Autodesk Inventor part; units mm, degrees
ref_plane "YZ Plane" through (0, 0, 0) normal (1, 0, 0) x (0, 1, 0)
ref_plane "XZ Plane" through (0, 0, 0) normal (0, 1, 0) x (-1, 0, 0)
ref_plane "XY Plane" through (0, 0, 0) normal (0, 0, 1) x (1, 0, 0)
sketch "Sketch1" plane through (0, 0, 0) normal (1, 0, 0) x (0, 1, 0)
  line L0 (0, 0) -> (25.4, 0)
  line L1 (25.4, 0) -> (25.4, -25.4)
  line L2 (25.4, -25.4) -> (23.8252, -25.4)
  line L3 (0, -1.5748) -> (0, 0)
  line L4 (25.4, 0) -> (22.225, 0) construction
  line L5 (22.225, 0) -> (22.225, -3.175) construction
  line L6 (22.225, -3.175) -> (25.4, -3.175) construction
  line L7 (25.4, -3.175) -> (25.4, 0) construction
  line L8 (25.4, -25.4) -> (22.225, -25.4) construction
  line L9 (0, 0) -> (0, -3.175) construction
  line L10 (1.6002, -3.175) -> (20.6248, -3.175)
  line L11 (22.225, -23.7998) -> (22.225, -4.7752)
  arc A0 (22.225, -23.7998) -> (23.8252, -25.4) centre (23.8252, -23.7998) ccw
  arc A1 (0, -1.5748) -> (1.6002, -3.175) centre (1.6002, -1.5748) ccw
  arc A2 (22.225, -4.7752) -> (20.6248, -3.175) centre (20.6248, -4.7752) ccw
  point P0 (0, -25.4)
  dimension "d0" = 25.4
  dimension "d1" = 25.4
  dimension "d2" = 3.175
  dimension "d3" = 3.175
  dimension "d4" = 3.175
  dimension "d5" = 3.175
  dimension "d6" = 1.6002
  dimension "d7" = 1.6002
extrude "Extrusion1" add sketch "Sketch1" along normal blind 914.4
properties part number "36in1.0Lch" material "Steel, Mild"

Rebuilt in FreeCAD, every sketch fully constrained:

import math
import FreeCAD as App
import Part
import Sketcher
Q = App.Units.Quantity

doc = App.newDocument("Part")
params = doc.addObject("Spreadsheet::Sheet", "Params")
for row, (alias, value) in enumerate([
    ("sketch1_width", "1 in"),
    ("sketch1_radius", "0.063 in"),
    ("pad1_length", "36 in"),
], start=1):
    params.set(f"A{row}", alias)
    params.set(f"B{row}", "=" + value)
    params.setAlias(f"B{row}", alias)

body = doc.addObject("PartDesign::Body", "Body")

# Sketch on YZ plane
sketch1 = body.newObject("Sketcher::SketchObject", "Sketch")
sketch1.AttachmentSupport = (doc.getObject("YZ_Plane"), [""])
sketch1.MapMode = "FlatFace"
sketch1.addGeometry(Part.LineSegment(App.Vector(25.4, 0, 0), App.Vector(0, 0, 0)), False)
sketch1.addGeometry(Part.LineSegment(App.Vector(0, 0, 0), App.Vector(0, -1.6, 0)), False)
sketch1.addGeometry(Part.ArcOfCircle(Part.Circle(App.Vector(1.6, -1.6, 0), App.Vector(0, 0, 1), 1.6), math.radians(180), math.radians(270)), False)
sketch1.addGeometry(Part.LineSegment(App.Vector(1.6, -3.2, 0), App.Vector(20.6, -3.2, 0)), False)
sketch1.addGeometry(Part.ArcOfCircle(Part.Circle(App.Vector(20.6, -4.8, 0), App.Vector(0, 0, 1), 1.6), math.radians(0), math.radians(90)), False)
sketch1.addGeometry(Part.LineSegment(App.Vector(22.2, -4.8, 0), App.Vector(22.2, -23.8, 0)), False)
sketch1.addGeometry(Part.ArcOfCircle(Part.Circle(App.Vector(23.8, -23.8, 0), App.Vector(0, 0, 1), 1.6), math.radians(180), math.radians(270)), False)
sketch1.addGeometry(Part.LineSegment(App.Vector(23.8, -25.4, 0), App.Vector(25.4, -25.4, 0)), False)
sketch1.addGeometry(Part.LineSegment(App.Vector(25.4, -25.4, 0), App.Vector(25.4, 0, 0)), False)
sketch1.addConstraint(Sketcher.Constraint("Coincident", 0, 2, 1, 1))
sketch1.addConstraint(Sketcher.Constraint("Tangent", 1, 2, 2, 1))
sketch1.addConstraint(Sketcher.Constraint("Tangent", 2, 2, 3, 1))
sketch1.addConstraint(Sketcher.Constraint("Tangent", 3, 2, 4, 2))
sketch1.addConstraint(Sketcher.Constraint("Tangent", 4, 1, 5, 1))
sketch1.addConstraint(Sketcher.Constraint("Tangent", 5, 2, 6, 1))
sketch1.addConstraint(Sketcher.Constraint("Tangent", 6, 2, 7, 1))
sketch1.addConstraint(Sketcher.Constraint("Coincident", 7, 2, 8, 1))
sketch1.addConstraint(Sketcher.Constraint("Coincident", 8, 2, 0, 1))
sketch1.addConstraint(Sketcher.Constraint("Horizontal", 0))
sketch1.addConstraint(Sketcher.Constraint("Vertical", 1))
sketch1.addConstraint(Sketcher.Constraint("Horizontal", 3))
sketch1.addConstraint(Sketcher.Constraint("Vertical", 5))
sketch1.addConstraint(Sketcher.Constraint("Horizontal", 7))
sketch1.addConstraint(Sketcher.Constraint("Vertical", 8))
sketch1.addConstraint(Sketcher.Constraint("Coincident", 0, 2, -1, 1))
sketch1.addConstraint(Sketcher.Constraint("Equal", 2, 4))
sketch1.addConstraint(Sketcher.Constraint("Equal", 4, 6))
sketch1.addConstraint(Sketcher.Constraint("Equal", 7, 1))
sketch1.addConstraint(Sketcher.Constraint("Equal", 3, 5))
sketch1.addConstraint(Sketcher.Constraint("DistanceX", 0, 2, 0, 1, Q("1 in")))
sketch1.addConstraint(Sketcher.Constraint("Radius", 2, Q("0.063 in")))
sketch1.addConstraint(Sketcher.Constraint("DistanceY", 2, 2, -1, 1, Q("0.125 in")))
sketch1.setExpression("Constraints[20]", "Params.sketch1_width")
sketch1.setExpression("Constraints[21]", "Params.sketch1_radius")
pad1 = body.newObject("PartDesign::Pad", "Pad")
pad1.Profile = sketch1
pad1.setExpression("Length", "Params.pad1_length")

doc.recompute()
